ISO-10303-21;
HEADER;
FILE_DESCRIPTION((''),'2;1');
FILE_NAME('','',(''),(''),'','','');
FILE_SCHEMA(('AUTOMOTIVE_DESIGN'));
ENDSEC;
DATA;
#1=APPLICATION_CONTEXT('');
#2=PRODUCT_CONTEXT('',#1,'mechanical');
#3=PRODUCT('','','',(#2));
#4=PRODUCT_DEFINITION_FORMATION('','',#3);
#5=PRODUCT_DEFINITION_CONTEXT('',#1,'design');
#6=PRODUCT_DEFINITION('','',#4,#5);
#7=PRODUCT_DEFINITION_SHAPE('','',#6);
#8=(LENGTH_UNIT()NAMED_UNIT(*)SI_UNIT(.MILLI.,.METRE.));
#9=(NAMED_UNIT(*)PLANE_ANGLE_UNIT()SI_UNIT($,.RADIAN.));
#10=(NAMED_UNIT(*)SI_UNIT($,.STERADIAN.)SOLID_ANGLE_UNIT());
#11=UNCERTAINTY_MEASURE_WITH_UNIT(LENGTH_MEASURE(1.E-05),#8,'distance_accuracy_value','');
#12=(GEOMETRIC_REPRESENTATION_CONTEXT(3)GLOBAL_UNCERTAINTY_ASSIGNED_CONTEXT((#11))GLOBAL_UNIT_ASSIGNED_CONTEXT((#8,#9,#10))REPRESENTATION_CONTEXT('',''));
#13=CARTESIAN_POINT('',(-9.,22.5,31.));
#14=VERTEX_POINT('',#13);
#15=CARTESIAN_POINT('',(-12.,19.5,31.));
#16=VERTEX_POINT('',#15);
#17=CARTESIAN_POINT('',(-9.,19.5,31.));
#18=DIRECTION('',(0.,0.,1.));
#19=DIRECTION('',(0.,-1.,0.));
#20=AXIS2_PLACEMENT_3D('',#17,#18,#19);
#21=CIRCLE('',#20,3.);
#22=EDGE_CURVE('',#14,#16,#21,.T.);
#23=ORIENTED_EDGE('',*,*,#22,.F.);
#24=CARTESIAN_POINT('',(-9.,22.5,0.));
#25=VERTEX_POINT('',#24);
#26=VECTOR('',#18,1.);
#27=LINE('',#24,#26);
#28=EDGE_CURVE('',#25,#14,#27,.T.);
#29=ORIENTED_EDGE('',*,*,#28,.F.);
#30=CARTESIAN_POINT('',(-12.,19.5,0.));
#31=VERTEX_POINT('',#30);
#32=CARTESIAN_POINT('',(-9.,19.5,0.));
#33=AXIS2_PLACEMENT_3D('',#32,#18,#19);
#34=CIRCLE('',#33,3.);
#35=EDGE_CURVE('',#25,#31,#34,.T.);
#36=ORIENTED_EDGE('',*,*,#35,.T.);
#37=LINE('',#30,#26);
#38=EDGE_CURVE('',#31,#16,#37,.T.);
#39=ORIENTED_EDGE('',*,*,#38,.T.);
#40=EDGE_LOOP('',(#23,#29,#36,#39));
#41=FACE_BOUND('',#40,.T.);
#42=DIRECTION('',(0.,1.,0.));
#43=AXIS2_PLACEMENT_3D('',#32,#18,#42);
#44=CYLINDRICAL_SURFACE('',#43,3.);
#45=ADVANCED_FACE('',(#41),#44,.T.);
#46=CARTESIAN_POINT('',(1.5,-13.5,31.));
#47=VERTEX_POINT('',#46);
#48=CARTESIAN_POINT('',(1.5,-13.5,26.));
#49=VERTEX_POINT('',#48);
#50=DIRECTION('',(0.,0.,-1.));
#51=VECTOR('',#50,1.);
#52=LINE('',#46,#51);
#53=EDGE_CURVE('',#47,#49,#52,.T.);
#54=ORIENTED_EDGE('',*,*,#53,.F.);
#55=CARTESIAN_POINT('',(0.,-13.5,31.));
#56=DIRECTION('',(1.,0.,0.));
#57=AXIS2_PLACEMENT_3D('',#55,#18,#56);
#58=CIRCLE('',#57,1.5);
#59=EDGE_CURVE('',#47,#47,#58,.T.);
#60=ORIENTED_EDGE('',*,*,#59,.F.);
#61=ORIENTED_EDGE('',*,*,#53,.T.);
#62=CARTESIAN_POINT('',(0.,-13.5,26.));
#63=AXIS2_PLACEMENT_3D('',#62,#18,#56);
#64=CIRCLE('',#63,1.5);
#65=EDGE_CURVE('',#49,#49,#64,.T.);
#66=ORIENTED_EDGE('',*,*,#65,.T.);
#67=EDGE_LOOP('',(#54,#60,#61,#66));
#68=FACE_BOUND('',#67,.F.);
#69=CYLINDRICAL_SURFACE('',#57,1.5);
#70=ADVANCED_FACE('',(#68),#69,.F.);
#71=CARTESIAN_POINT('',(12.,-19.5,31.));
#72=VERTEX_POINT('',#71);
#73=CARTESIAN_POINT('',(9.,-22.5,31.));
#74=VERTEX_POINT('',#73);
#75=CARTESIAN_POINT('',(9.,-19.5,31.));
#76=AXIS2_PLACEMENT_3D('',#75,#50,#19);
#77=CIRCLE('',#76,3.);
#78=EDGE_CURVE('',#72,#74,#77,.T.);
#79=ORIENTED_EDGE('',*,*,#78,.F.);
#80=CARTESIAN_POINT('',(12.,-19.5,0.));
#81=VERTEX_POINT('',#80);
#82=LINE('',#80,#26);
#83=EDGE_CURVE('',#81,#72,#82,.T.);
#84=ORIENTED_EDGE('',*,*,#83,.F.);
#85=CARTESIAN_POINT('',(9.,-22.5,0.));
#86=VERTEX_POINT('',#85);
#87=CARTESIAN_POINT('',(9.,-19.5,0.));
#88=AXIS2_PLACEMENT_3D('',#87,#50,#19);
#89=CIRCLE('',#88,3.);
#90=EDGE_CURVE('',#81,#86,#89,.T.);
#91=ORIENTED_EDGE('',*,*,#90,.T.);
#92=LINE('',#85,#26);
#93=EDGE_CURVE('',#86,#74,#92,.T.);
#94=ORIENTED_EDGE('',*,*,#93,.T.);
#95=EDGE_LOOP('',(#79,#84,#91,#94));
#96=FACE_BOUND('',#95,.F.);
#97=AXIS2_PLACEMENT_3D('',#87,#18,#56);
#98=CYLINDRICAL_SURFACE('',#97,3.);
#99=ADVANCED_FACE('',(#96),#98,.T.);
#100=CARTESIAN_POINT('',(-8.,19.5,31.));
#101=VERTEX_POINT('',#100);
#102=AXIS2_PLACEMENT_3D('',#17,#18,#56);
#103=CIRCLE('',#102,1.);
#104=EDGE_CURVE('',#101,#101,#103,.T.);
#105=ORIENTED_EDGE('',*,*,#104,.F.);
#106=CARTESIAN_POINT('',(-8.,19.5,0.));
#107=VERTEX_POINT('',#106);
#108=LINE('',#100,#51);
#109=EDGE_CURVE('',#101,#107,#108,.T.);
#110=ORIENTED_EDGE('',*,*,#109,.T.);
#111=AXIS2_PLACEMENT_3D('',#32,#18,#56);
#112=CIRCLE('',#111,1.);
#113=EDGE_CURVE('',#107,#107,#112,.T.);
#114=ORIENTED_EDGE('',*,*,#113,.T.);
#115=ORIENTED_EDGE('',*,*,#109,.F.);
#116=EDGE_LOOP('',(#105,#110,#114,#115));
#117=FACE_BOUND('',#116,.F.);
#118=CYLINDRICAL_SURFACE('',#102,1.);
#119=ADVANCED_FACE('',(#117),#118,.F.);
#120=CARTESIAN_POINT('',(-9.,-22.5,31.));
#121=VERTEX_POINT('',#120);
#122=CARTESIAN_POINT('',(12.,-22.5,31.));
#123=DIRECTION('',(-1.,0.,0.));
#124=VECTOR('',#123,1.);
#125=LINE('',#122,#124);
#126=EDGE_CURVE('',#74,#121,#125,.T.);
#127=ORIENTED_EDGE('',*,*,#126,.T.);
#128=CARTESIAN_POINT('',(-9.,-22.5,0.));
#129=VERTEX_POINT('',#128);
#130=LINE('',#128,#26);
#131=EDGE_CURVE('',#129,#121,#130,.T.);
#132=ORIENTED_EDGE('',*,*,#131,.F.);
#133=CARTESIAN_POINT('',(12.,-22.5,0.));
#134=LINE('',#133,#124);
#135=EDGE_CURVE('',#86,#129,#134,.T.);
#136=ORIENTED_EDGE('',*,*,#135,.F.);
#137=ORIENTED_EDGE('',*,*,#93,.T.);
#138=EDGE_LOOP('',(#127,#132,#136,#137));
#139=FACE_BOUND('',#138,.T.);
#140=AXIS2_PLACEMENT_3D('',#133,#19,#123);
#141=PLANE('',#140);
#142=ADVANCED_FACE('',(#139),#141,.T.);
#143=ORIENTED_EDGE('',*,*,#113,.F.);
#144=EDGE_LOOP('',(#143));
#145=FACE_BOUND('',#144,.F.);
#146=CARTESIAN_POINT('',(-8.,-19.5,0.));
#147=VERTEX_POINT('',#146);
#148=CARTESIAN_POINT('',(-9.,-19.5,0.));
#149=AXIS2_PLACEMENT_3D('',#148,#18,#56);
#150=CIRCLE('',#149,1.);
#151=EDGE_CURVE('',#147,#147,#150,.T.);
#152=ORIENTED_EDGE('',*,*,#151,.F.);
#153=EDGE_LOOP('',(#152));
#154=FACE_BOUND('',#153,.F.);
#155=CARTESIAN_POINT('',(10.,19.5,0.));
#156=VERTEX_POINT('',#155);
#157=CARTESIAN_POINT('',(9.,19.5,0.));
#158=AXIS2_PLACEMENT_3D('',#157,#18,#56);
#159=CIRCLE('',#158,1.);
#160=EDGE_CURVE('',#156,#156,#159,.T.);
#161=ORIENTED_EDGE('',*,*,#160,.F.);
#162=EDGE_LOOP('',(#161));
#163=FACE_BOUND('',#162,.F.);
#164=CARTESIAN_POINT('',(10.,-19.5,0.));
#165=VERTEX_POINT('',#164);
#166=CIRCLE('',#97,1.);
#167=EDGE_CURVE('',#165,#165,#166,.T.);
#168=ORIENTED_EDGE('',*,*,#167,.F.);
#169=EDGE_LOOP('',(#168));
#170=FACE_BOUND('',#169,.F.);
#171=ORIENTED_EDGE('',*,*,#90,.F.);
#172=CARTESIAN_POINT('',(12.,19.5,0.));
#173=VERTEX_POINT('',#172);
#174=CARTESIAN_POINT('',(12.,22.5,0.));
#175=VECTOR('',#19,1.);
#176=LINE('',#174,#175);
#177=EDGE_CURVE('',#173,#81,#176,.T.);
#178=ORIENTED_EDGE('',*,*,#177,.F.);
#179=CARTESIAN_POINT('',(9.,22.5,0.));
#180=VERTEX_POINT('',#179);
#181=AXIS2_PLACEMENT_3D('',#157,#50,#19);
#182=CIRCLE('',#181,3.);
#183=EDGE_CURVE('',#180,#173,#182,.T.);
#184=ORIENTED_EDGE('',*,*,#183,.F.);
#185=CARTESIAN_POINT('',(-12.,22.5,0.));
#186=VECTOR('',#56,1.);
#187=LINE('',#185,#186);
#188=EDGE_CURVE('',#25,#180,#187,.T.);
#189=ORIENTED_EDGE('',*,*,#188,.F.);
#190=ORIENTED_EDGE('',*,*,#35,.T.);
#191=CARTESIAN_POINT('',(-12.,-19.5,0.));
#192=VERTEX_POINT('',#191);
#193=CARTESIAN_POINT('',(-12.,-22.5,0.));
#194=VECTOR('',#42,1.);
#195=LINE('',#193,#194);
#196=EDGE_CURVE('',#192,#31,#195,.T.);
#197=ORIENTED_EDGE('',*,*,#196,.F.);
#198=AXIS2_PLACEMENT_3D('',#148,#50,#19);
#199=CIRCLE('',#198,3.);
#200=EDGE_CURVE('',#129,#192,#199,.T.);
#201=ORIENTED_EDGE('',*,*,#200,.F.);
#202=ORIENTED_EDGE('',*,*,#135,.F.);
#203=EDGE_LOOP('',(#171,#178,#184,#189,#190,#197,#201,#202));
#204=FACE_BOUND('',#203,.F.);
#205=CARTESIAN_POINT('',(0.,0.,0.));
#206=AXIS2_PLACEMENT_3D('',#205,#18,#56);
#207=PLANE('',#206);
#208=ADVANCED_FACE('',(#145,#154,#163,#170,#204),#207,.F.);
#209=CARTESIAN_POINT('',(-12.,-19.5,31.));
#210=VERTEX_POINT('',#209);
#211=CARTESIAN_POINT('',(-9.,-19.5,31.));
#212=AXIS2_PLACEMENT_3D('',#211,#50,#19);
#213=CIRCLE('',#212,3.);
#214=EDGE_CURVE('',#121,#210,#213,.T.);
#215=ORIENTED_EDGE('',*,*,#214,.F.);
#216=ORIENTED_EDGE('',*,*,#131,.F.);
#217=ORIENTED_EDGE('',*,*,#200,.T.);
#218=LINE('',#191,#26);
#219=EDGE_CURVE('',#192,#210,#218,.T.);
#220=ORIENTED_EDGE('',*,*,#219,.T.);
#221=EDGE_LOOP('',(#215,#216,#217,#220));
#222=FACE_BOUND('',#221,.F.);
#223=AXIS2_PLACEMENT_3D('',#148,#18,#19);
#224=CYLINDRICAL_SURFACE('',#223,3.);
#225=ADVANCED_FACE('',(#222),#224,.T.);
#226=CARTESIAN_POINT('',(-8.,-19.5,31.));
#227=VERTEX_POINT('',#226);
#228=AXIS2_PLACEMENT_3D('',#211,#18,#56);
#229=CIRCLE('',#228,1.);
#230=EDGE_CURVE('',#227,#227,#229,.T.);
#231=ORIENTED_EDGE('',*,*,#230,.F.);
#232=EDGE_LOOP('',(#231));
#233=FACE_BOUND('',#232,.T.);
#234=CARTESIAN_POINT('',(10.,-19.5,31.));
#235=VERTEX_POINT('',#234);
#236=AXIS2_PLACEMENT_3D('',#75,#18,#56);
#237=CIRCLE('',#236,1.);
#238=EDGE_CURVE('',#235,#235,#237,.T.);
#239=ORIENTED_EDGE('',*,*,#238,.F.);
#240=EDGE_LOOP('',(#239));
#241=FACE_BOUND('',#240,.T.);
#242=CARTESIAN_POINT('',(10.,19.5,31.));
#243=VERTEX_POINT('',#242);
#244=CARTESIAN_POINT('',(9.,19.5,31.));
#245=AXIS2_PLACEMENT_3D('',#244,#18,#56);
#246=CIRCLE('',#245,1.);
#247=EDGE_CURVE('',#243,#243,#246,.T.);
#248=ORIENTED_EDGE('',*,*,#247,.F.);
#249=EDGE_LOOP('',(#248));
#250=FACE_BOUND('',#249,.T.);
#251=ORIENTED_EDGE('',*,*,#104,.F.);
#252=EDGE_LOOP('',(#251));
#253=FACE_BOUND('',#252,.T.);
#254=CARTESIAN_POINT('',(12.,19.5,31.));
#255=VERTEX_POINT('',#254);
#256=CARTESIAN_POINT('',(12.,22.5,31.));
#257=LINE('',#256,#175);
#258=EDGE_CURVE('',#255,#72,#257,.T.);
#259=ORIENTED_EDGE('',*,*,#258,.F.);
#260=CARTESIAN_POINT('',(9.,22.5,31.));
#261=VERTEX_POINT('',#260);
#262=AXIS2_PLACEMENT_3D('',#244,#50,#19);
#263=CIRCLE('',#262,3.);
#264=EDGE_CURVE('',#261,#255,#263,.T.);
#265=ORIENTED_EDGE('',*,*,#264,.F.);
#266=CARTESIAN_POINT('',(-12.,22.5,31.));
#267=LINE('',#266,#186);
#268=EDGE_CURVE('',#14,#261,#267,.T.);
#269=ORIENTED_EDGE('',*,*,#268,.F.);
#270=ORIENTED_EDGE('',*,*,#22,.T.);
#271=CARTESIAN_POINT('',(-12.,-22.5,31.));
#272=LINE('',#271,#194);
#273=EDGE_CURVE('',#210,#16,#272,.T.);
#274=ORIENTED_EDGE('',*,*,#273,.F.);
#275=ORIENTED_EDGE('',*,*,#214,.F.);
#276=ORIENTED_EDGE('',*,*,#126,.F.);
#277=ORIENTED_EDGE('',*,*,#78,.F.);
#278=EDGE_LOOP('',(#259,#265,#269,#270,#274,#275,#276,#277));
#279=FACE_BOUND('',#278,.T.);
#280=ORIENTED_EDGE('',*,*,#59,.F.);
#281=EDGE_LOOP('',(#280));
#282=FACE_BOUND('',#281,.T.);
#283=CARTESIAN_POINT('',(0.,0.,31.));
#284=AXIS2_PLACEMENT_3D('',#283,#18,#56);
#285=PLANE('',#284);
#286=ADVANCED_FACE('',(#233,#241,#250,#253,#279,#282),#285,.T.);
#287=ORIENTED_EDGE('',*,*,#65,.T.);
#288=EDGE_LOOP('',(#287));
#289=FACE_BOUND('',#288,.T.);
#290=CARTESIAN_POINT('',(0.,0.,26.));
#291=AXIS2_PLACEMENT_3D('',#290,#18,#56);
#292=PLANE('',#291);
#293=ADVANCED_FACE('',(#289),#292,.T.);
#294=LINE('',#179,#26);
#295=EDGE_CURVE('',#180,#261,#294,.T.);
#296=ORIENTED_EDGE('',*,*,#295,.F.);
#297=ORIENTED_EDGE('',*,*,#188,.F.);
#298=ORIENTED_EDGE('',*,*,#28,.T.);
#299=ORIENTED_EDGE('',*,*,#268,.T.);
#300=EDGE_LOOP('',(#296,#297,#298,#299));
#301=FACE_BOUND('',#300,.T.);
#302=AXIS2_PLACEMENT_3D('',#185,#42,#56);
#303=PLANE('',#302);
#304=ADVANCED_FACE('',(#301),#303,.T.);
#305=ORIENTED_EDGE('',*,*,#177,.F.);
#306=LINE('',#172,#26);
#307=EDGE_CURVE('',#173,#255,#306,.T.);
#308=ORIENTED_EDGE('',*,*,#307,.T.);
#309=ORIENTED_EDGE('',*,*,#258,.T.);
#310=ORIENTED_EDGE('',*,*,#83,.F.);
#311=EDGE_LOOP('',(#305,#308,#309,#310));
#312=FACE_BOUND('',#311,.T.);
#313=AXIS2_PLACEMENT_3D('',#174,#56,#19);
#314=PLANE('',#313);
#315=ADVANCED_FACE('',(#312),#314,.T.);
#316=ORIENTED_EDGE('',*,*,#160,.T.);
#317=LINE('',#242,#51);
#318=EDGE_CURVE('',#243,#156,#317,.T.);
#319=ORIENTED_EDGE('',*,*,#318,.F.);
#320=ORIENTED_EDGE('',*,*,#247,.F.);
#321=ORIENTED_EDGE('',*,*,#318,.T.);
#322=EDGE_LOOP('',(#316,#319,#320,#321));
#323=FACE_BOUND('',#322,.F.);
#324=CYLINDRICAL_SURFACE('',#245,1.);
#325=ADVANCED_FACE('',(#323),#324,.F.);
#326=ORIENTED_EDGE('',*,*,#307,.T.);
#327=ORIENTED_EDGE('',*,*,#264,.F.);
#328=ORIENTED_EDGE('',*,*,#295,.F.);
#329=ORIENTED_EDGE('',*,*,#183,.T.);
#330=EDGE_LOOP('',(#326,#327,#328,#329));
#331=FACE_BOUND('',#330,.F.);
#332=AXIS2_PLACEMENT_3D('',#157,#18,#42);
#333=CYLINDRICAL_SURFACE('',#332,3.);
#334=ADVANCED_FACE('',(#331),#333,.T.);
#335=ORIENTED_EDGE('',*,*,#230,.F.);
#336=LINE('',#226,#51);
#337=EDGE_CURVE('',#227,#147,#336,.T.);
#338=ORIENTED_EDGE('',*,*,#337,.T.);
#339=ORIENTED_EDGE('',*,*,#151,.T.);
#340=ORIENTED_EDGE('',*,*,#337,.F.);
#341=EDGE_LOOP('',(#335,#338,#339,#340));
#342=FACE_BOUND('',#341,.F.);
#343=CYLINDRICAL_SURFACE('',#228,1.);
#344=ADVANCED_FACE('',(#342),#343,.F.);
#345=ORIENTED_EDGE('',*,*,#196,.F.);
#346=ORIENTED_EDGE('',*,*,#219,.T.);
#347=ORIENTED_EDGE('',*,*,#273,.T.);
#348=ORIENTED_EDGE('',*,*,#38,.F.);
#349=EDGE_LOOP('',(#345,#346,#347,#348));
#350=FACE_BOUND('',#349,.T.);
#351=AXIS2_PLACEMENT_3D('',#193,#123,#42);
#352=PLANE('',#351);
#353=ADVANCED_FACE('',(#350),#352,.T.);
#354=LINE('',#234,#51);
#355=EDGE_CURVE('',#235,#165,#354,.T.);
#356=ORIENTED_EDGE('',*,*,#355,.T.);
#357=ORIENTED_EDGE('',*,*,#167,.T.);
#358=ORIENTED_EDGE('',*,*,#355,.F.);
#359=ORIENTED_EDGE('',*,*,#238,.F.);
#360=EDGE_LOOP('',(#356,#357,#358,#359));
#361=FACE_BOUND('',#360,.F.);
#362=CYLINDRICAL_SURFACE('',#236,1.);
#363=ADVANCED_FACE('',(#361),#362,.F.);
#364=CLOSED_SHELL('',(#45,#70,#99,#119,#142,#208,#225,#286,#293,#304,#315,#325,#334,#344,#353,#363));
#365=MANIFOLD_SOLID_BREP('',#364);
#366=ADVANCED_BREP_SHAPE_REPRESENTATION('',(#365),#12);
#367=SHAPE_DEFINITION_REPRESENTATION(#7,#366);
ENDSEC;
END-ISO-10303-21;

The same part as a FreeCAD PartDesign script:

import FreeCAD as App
import Part
import Sketcher
from FreeCAD import Vector


def edges_at(feature, points):
    """Names of the edges that pass closest to the given points."""
    edges = feature.Shape.Edges
    near = lambda p: min(range(len(edges)), key=lambda i: edges[i].distToShape(Part.Vertex(*p))[0])
    return sorted({f"Edge{near(p) + 1}" for p in points})

doc = App.newDocument("Part")
body = doc.addObject("PartDesign::Body", "Body")

# Sketch on XY plane
sketch1 = body.newObject("Sketcher::SketchObject", "Sketch")
sketch1.AttachmentSupport = (doc.getObject("XY_Plane"), [""])
sketch1.MapMode = "FlatFace"
sketch1.addGeometry(Part.LineSegment(Vector(12, 22.5, 0), Vector(-12, 22.5, 0)), False)
sketch1.addGeometry(Part.LineSegment(Vector(-12, 22.5, 0), Vector(-12, -22.5, 0)), False)
sketch1.addGeometry(Part.LineSegment(Vector(-12, -22.5, 0), Vector(12, -22.5, 0)), False)
sketch1.addGeometry(Part.LineSegment(Vector(12, -22.5, 0), Vector(12, 22.5, 0)), False)
sketch1.addConstraint(Sketcher.Constraint("Coincident", 0, 2, 1, 1))
sketch1.addConstraint(Sketcher.Constraint("Coincident", 1, 2, 2, 1))
sketch1.addConstraint(Sketcher.Constraint("Coincident", 2, 2, 3, 1))
sketch1.addConstraint(Sketcher.Constraint("Coincident", 3, 2, 0, 1))
sketch1.addConstraint(Sketcher.Constraint("Horizontal", 0))
sketch1.addConstraint(Sketcher.Constraint("Vertical", 1))
sketch1.addConstraint(Sketcher.Constraint("Horizontal", 2))
sketch1.addConstraint(Sketcher.Constraint("Vertical", 3))
sketch1.addConstraint(Sketcher.Constraint("Symmetric", 0, 2, 2, 2, -1, 1))
sketch1.addConstraint(Sketcher.Constraint("DistanceX", 0, 2, 0, 1, 24.0))
sketch1.addConstraint(Sketcher.Constraint("DistanceY", 1, 2, 1, 1, 45.0))
pad1 = body.newObject("PartDesign::Pad", "Pad")
pad1.Profile = sketch1
pad1.Length = 31
doc.recompute()

fillet = body.newObject("PartDesign::Fillet", "Fillet")
fillet.Base = (pad1, edges_at(pad1, [
    (12, 22.5, 15.5),
    (-12, 22.5, 15.5),
    (12, -22.5, 15.5),
    (-12, -22.5, 15.5),
]))
fillet.Radius = 3

# Sketch on XY plane
sketch2 = body.newObject("Sketcher::SketchObject", "Sketch001")
sketch2.AttachmentSupport = (doc.getObject("XY_Plane"), [""])
sketch2.MapMode = "FlatFace"
sketch2.AttachmentOffset = App.Placement(Vector(0, 0, 31), App.Rotation())
sketch2.addGeometry(Part.Circle(Vector(0, -13.5, 0), Vector(0, 0, 1), 1.5), False)
sketch2.addConstraint(Sketcher.Constraint("PointOnObject", 0, 3, -2))
sketch2.addConstraint(Sketcher.Constraint("Diameter", 0, 3.0))
sketch2.addConstraint(Sketcher.Constraint("DistanceY", 0, 3, -1, 1, 13.5))
pocket1 = body.newObject("PartDesign::Pocket", "Pocket")
pocket1.Profile = sketch2
pocket1.Length = 5

# Sketch on XY plane
sketch3 = body.newObject("Sketcher::SketchObject", "Sketch002")
sketch3.AttachmentSupport = (doc.getObject("XY_Plane"), [""])
sketch3.MapMode = "FlatFace"
sketch3.AttachmentOffset = App.Placement(Vector(0, 0, 31), App.Rotation())
sketch3.addGeometry(Part.Circle(Vector(-9, 19.5, 0), Vector(0, 0, 1), 1), False)
sketch3.addGeometry(Part.Circle(Vector(9, 19.5, 0), Vector(0, 0, 1), 1), False)
sketch3.addGeometry(Part.Circle(Vector(-9, -19.5, 0), Vector(0, 0, 1), 1), False)
sketch3.addGeometry(Part.Circle(Vector(9, -19.5, 0), Vector(0, 0, 1), 1), False)
sketch3.addConstraint(Sketcher.Constraint("Equal", 0, 1))
sketch3.addConstraint(Sketcher.Constraint("Equal", 1, 2))
sketch3.addConstraint(Sketcher.Constraint("Equal", 2, 3))
sketch3.addConstraint(Sketcher.Constraint("Symmetric", 1, 3, 2, 3, -1, 1))
sketch3.addConstraint(Sketcher.Constraint("Symmetric", 0, 3, 3, 3, -1, 1))
sketch3.addConstraint(Sketcher.Constraint("Symmetric", 0, 3, 1, 3, -2))
sketch3.addConstraint(Sketcher.Constraint("Diameter", 0, 2.0))
sketch3.addConstraint(Sketcher.Constraint("DistanceX", 0, 3, -1, 1, 9.0))
sketch3.addConstraint(Sketcher.Constraint("DistanceY", 2, 3, 0, 3, 39.0))
pocket2 = body.newObject("PartDesign::Pocket", "Pocket001")
pocket2.Profile = sketch3
pocket2.Length = 31

doc.recompute()
